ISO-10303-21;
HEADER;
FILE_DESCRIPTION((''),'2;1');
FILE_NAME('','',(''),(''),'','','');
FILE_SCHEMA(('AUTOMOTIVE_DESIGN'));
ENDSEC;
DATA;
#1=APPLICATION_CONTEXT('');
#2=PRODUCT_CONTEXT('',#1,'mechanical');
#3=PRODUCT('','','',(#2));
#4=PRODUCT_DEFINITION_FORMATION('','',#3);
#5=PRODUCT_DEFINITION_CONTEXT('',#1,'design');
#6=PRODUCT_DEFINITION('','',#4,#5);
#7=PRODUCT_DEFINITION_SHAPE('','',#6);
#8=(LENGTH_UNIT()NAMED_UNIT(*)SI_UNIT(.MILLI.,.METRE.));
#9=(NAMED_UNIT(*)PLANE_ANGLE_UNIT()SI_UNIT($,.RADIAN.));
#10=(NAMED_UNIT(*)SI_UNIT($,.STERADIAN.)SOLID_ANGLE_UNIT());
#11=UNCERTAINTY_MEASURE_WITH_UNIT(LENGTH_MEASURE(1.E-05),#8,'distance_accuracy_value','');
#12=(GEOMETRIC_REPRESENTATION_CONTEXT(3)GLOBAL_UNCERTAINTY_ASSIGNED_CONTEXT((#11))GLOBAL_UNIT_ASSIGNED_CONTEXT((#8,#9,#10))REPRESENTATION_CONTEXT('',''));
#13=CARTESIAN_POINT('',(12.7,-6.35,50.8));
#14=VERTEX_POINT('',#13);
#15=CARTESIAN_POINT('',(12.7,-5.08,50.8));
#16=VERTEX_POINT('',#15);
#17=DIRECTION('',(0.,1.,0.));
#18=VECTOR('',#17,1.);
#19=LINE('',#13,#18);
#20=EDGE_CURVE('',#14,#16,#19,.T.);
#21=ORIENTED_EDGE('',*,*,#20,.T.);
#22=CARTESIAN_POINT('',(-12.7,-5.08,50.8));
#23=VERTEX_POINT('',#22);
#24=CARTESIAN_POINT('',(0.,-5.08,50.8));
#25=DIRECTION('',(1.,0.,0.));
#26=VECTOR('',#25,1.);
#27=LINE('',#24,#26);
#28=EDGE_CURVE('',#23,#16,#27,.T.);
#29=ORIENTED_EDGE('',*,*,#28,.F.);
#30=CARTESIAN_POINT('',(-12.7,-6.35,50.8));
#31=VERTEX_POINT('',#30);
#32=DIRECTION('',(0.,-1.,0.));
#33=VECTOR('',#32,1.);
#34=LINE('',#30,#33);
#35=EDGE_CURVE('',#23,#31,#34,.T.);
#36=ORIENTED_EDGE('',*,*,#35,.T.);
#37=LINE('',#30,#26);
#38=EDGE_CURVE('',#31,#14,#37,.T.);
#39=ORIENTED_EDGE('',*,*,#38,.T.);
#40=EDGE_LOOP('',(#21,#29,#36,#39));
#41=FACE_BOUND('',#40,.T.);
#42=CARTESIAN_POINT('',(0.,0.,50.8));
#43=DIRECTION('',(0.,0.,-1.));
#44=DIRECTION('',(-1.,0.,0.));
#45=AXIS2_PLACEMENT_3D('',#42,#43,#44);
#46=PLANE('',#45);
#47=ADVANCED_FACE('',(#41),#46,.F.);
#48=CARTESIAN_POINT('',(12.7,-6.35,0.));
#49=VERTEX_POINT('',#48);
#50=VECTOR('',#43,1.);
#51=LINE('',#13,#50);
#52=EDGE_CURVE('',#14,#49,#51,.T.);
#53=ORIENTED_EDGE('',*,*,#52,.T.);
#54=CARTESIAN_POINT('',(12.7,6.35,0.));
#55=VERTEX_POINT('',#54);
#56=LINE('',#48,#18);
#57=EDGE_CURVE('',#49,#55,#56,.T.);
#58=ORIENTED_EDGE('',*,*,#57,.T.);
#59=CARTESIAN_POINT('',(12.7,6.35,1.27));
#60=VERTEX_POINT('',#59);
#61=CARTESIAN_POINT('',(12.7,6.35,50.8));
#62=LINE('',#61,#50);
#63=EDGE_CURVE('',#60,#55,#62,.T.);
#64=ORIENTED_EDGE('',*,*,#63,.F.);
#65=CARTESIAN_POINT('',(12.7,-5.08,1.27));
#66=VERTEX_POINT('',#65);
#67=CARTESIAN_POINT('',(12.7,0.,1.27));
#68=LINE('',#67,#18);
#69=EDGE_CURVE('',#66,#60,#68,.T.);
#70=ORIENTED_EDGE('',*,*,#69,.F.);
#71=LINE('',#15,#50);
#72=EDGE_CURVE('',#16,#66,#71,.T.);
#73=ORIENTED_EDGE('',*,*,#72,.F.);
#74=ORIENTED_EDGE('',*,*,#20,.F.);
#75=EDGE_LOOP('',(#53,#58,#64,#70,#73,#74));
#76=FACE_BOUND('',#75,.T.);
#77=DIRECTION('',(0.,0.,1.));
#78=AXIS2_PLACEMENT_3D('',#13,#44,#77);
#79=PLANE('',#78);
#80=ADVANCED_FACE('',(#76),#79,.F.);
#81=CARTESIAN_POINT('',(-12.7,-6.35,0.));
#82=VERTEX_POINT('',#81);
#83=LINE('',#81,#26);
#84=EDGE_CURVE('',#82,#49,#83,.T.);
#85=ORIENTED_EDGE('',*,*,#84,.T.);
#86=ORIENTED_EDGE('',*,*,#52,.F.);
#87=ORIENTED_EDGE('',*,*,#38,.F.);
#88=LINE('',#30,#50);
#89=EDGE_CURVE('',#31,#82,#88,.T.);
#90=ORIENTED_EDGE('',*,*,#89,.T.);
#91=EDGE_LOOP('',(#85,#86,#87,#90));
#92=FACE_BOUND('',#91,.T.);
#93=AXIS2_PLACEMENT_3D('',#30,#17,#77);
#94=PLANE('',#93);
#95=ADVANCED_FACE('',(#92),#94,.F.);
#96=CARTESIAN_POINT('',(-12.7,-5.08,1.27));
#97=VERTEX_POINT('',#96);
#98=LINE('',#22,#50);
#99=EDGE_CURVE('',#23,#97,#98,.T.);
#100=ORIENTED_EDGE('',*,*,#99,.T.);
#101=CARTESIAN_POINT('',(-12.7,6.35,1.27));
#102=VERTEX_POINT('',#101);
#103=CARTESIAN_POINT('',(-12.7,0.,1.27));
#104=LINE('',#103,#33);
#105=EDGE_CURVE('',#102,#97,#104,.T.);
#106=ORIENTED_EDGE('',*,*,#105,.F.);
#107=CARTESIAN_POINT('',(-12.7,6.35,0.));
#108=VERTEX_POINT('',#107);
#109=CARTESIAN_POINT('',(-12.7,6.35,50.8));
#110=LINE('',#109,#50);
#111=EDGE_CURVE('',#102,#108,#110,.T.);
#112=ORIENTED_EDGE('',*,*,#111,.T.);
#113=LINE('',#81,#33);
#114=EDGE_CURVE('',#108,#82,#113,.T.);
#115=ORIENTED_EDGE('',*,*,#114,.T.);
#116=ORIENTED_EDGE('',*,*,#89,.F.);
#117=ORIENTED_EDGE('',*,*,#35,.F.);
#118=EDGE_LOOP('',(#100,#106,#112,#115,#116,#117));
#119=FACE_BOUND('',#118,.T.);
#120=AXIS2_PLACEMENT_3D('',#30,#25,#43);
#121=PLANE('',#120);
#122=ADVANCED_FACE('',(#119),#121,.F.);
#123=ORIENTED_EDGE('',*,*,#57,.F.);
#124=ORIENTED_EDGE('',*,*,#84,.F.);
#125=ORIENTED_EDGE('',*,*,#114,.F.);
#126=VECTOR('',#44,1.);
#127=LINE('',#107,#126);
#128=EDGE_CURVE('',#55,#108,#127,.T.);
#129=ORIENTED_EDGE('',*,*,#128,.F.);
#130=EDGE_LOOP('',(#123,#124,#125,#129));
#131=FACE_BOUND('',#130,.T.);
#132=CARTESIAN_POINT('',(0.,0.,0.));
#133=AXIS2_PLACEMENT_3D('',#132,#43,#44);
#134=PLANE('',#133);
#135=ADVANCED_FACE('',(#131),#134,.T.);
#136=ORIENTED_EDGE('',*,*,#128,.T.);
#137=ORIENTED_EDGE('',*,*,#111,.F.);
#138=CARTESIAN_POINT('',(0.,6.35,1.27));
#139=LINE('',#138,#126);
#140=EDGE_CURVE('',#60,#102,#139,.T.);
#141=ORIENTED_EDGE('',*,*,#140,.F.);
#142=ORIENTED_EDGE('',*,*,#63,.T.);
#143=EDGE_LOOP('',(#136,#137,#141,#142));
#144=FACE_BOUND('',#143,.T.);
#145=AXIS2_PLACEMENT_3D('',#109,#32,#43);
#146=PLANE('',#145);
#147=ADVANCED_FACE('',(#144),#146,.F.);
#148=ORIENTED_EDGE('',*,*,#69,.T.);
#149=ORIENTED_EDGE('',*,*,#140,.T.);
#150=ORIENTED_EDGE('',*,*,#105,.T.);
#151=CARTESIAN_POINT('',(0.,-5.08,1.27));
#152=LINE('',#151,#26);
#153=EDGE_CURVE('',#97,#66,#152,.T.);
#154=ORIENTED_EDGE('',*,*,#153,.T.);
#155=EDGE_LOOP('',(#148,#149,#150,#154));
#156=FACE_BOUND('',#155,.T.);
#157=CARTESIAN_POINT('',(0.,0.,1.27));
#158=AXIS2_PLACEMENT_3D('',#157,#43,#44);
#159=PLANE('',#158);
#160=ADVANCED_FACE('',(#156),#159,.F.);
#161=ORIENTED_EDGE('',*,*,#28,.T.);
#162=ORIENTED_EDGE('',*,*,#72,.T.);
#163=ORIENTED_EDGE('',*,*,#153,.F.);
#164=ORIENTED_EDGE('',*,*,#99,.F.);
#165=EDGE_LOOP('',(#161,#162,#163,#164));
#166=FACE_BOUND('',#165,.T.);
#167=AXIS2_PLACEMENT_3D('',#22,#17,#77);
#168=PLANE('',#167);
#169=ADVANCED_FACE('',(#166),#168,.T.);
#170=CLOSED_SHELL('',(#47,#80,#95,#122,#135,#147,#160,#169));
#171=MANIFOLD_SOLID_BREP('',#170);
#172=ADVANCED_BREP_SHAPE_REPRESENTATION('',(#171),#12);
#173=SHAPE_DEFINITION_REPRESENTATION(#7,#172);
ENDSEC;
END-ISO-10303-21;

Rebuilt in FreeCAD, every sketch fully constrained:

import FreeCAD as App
import Part
import Sketcher
from FreeCAD import Vector
Q = App.Units.Quantity


def faces_at(feature, points):
    """Names of the faces that lie closest to the given points."""
    faces = feature.Shape.Faces
    near = lambda p: min(range(len(faces)), key=lambda i: faces[i].distToShape(Part.Vertex(*p))[0])
    return sorted({f"Face{near(p) + 1}" for p in points})


def add_polygon(sketch, points):
    """Adds a closed chain of lines whose ends are joined by coincident constraints."""
    first, n = sketch.GeometryCount, len(points)
    for a, b in zip(points, points[1:] + points[:1]):
        sketch.addGeometry(Part.LineSegment(App.Vector(*a, 0), App.Vector(*b, 0)), False)
    for i in range(n):
        sketch.addConstraint(Sketcher.Constraint("Coincident", first + i, 2, first + (i + 1) % n, 1))

doc = App.newDocument("Part")
params = doc.addObject("Spreadsheet::Sheet", "Params")
for row, (alias, value) in enumerate([
    ("sketch1_width", "1 in"),
    ("sketch1_height", "0.5 in"),
    ("pad1_length", "2 in"),
    ("thickness_wall", "0.05 in"),
], start=1):
    params.set(f"A{row}", alias)
    params.set(f"B{row}", "=" + value)
    params.setAlias(f"B{row}", alias)

body = doc.addObject("PartDesign::Body", "Body")

# Sketch on XY plane
sketch1 = doc.addObject("Sketcher::SketchObject", "Sketch")
body.addObject(sketch1)
sketch1.AttachmentSupport = (doc.XY_Plane, [""])
sketch1.MapMode = "FlatFace"
add_polygon(sketch1, [(-12.7, 6.35), (-12.7, -6.35), (12.7, -6.35), (12.7, 6.35)])  # lines 0-3
sketch1.addConstraint([
    Sketcher.Constraint("Vertical", 0),
    Sketcher.Constraint("Horizontal", 1),
    Sketcher.Constraint("Vertical", 2),
    Sketcher.Constraint("Horizontal", 3),
    Sketcher.Constraint("Symmetric", 0, 2, 2, 2, -1, 1),
    Sketcher.Constraint("DistanceX", 1, 1, 1, 2, Q("1 in")),
    Sketcher.Constraint("DistanceY", 0, 2, 0, 1, Q("0.5 in")),
])
sketch1.setExpression("Constraints[9]", "Params.sketch1_width")
sketch1.setExpression("Constraints[10]", "Params.sketch1_height")
pad1 = doc.addObject("PartDesign::Pad", "Pad")
body.addObject(pad1)
pad1.Profile = sketch1
pad1.setExpression("Length", "Params.pad1_length")
doc.recompute()

thickness = doc.addObject("PartDesign::Thickness", "Thickness")
body.addObject(thickness)
thickness.Base = (pad1, faces_at(pad1, [
    (0, 0, 50.8),
    (-12.7, 0, 25.4),
    (0, 6.35, 25.4),
    (12.7, 0, 25.4),
]))
thickness.setExpression("Value", "Params.thickness_wall")
thickness.Reversed = True
thickness.Join = "Intersection"

doc.recompute()
